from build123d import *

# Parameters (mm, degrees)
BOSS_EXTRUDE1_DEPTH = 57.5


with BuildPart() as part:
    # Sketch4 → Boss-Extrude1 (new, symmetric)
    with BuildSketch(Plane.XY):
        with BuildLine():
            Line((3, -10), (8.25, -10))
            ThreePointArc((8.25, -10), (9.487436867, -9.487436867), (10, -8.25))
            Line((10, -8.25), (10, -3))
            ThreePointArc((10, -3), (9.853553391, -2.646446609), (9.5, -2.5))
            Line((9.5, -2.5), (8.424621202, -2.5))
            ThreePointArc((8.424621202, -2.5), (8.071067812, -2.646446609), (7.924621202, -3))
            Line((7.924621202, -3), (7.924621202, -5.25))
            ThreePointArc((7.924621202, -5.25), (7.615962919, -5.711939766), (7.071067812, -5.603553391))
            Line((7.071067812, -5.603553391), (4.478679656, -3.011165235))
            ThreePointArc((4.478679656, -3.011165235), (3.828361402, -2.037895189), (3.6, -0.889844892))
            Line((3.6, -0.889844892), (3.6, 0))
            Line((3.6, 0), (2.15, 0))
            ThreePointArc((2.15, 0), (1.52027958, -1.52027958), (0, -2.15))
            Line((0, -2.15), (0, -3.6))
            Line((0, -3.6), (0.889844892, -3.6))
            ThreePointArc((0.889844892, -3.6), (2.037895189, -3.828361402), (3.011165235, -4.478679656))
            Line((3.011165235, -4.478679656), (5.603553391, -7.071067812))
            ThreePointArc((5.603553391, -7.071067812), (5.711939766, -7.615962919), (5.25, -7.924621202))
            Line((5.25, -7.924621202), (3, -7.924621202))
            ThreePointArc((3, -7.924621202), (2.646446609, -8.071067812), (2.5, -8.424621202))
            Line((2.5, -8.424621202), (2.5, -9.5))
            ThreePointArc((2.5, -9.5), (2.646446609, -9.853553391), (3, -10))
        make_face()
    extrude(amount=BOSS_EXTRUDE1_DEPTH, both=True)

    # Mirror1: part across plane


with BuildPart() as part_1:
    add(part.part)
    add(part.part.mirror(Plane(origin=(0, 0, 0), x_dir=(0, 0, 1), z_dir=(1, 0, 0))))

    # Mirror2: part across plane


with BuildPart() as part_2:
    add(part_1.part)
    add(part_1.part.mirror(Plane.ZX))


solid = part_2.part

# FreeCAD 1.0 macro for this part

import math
import FreeCAD as App
import Part
import Sketcher
from FreeCAD import Vector
Q = App.Units.Quantity

doc = App.newDocument("Part")
body = doc.addObject("PartDesign::Body", "Body")

sketch1 = doc.addObject("Sketcher::SketchObject", "Sketch")
body.addObject(sketch1)
sketch1.AttachmentSupport = (doc.XY_Plane, [""])
sketch1.MapMode = "FlatFace"
sketch1.addGeometry([
    Part.LineSegment(Vector(3, -10, 0), Vector(8.25, -10, 0)),
    Part.ArcOfCircle(Part.Circle(Vector(8.25, -8.25, 0), Vector(0, 0, 1), 1.75), math.radians(-90), math.radians(0)),
    Part.LineSegment(Vector(10, -8.25, 0), Vector(10, -3, 0)),
    Part.ArcOfCircle(Part.Circle(Vector(9.5, -3, 0), Vector(0, 0, 1), 0.5), math.radians(0), math.radians(90)),
    Part.LineSegment(Vector(9.5, -2.5, 0), Vector(8.424621, -2.5, 0)),
    Part.ArcOfCircle(Part.Circle(Vector(8.424621, -3, 0), Vector(0, 0, 1), 0.5), math.radians(90), math.radians(180)),
    Part.LineSegment(Vector(7.924621, -3, 0), Vector(7.924621, -5.25, 0)),
    Part.ArcOfCircle(Part.Circle(Vector(7.424621, -5.25, 0), Vector(0, 0, 1), 0.5), math.radians(-135), math.radians(0)),
    Part.LineSegment(Vector(7.071068, -5.603553, 0), Vector(4.47868, -3.011165, 0)),
    Part.ArcOfCircle(Part.Circle(Vector(6.6, -0.889845, 0), Vector(0, 0, 1), 3), math.radians(180), math.radians(225)),
    Part.LineSegment(Vector(3.6, -0.889845, 0), Vector(3.6, 0, 0)),
    Part.LineSegment(Vector(3.6, 0, 0), Vector(2.15, 0, 0)),
    Part.ArcOfCircle(Part.Circle(Vector(0, 0, 0), Vector(0, 0, 1), 2.15), math.radians(-90), math.radians(0)),
    Part.LineSegment(Vector(0, -2.15, 0), Vector(0, -3.6, 0)),
    Part.LineSegment(Vector(0, -3.6, 0), Vector(0.889845, -3.6, 0)),
    Part.ArcOfCircle(Part.Circle(Vector(0.889845, -6.6, 0), Vector(0, 0, 1), 3), math.radians(45), math.radians(90)),
    Part.LineSegment(Vector(3.011165, -4.47868, 0), Vector(5.603553, -7.071068, 0)),
    Part.ArcOfCircle(Part.Circle(Vector(5.25, -7.424621, 0), Vector(0, 0, 1), 0.5), math.radians(-90), math.radians(45)),
    Part.LineSegment(Vector(5.25, -7.924621, 0), Vector(3, -7.924621, 0)),
    Part.ArcOfCircle(Part.Circle(Vector(3, -8.424621, 0), Vector(0, 0, 1), 0.5), math.radians(90), math.radians(180)),
    Part.LineSegment(Vector(2.5, -8.424621, 0), Vector(2.5, -9.5, 0)),
    Part.ArcOfCircle(Part.Circle(Vector(3, -9.5, 0), Vector(0, 0, 1), 0.5), math.radians(180), math.radians(270)),
], False)
sketch1.addConstraint([
    Sketcher.Constraint("Tangent", 0, 2, 1, 1),
    Sketcher.Constraint("Tangent", 1, 2, 2, 1),
    Sketcher.Constraint("Tangent", 2, 2, 3, 1),
    Sketcher.Constraint("Tangent", 3, 2, 4, 1),
    Sketcher.Constraint("Tangent", 4, 2, 5, 1),
    Sketcher.Constraint("Tangent", 5, 2, 6, 1),
    Sketcher.Constraint("Tangent", 6, 2, 7, 2),
    Sketcher.Constraint("Tangent", 7, 1, 8, 1),
    Sketcher.Constraint("Tangent", 8, 2, 9, 2),
    Sketcher.Constraint("Tangent", 9, 1, 10, 1),
    Sketcher.Constraint("Coincident", 10, 2, 11, 1),
    Sketcher.Constraint("Coincident", 11, 2, 12, 2),
    Sketcher.Constraint("Coincident", 12, 1, 13, 1),
    Sketcher.Constraint("Coincident", 13, 2, 14, 1),
    Sketcher.Constraint("Tangent", 14, 2, 15, 2),
    Sketcher.Constraint("Tangent", 15, 1, 16, 1),
    Sketcher.Constraint("Tangent", 16, 2, 17, 2),
    Sketcher.Constraint("Tangent", 17, 1, 18, 1),
    Sketcher.Constraint("Tangent", 18, 2, 19, 1),
    Sketcher.Constraint("Tangent", 19, 2, 20, 1),
    Sketcher.Constraint("Tangent", 20, 2, 21, 1),
    Sketcher.Constraint("Tangent", 21, 2, 0, 1),
    Sketcher.Constraint("Horizontal", 0),
    Sketcher.Constraint("Vertical", 2),
    Sketcher.Constraint("Horizontal", 4),
    Sketcher.Constraint("Vertical", 6),
    Sketcher.Constraint("Vertical", 10),
    Sketcher.Constraint("Horizontal", 11),
    Sketcher.Constraint("Vertical", 13),
    Sketcher.Constraint("Horizontal", 14),
    Sketcher.Constraint("Horizontal", 18),
    Sketcher.Constraint("Vertical", 20),
    Sketcher.Constraint("Coincident", 12, 3, -1, 1),
    Sketcher.Constraint("Equal", 3, 5),
    Sketcher.Constraint("Equal", 5, 7),
    Sketcher.Constraint("Equal", 9, 15),
    Sketcher.Constraint("Equal", 7, 17),
    Sketcher.Constraint("Equal", 17, 19),
    Sketcher.Constraint("Equal", 19, 21),
    Sketcher.Constraint("PointOnObject", 10, 2, -1),
    Sketcher.Constraint("PointOnObject", 12, 1, -2),
    Sketcher.Constraint("Parallel", 8, 16),
    Sketcher.Constraint("Equal", 0, 2),
    Sketcher.Constraint("Equal", 18, 6),
    Sketcher.Constraint("Equal", 14, 10),
    Sketcher.Constraint("Equal", 11, 13),
    Sketcher.Constraint("Equal", 4, 20),
    Sketcher.Constraint("Equal", 8, 16),
    Sketcher.Constraint("Radius", 9, Q("3 mm")),
    Sketcher.Constraint("Radius", 3, Q("0.5 mm")),
    Sketcher.Constraint("Radius", 1, Q("1.75 mm")),
    Sketcher.Constraint("Radius", 12, Q("2.15 mm")),
    Sketcher.Constraint("DistanceY", 3, 3, -1, 1, Q("3 mm")),
    Sketcher.Constraint("DistanceY", 0, 2, -1, 1, Q("10 mm")),
    Sketcher.Constraint("DistanceY", 1, 3, 7, 3, Q("3 mm")),
    Sketcher.Constraint("DistanceX", 11, 2, 11, 1, Q("1.45 mm")),
    Sketcher.Constraint("DistanceX", 4, 2, 4, 1, Q("1.075379 mm")),
])
pad1 = doc.addObject("PartDesign::Pad", "Pad")
body.addObject(pad1)
pad1.Profile = sketch1
pad1.Length = 115
pad1.Midplane = True
body2 = doc.addObject("PartDesign::Body", "Body001")
doc.recompute()

body2.BaseFeature = body
doc.recompute()

mirroring = doc.addObject("Part::Mirroring", "Mirroring")
mirroring.Source = body
mirroring.Base = Vector(0, 0, 0)
mirroring.Normal = Vector(1, 0, 0)
body3 = doc.addObject("PartDesign::Body", "Body002")
body3.BaseFeature = mirroring
boolean = doc.addObject("PartDesign::Boolean", "Boolean")
body2.addObject(boolean)
boolean.Type = "Fuse"
boolean.addObjects([body3])
doc.recompute()
body4 = doc.addObject("PartDesign::Body", "Body003")
doc.recompute()

body4.BaseFeature = body2
doc.recompute()

mirroring2 = doc.addObject("Part::Mirroring", "Mirroring001")
mirroring2.Source = body2
mirroring2.Base = Vector(0, 0, 0)
mirroring2.Normal = Vector(0, 1, 0)
body5 = doc.addObject("PartDesign::Body", "Body004")
body5.BaseFeature = mirroring2
boolean2 = doc.addObject("PartDesign::Boolean", "Boolean001")
body4.addObject(boolean2)
boolean2.Type = "Fuse"
boolean2.addObjects([body5])
doc.recompute()
mirroring.Visibility = False
mirroring2.Visibility = False

doc.recompute()
